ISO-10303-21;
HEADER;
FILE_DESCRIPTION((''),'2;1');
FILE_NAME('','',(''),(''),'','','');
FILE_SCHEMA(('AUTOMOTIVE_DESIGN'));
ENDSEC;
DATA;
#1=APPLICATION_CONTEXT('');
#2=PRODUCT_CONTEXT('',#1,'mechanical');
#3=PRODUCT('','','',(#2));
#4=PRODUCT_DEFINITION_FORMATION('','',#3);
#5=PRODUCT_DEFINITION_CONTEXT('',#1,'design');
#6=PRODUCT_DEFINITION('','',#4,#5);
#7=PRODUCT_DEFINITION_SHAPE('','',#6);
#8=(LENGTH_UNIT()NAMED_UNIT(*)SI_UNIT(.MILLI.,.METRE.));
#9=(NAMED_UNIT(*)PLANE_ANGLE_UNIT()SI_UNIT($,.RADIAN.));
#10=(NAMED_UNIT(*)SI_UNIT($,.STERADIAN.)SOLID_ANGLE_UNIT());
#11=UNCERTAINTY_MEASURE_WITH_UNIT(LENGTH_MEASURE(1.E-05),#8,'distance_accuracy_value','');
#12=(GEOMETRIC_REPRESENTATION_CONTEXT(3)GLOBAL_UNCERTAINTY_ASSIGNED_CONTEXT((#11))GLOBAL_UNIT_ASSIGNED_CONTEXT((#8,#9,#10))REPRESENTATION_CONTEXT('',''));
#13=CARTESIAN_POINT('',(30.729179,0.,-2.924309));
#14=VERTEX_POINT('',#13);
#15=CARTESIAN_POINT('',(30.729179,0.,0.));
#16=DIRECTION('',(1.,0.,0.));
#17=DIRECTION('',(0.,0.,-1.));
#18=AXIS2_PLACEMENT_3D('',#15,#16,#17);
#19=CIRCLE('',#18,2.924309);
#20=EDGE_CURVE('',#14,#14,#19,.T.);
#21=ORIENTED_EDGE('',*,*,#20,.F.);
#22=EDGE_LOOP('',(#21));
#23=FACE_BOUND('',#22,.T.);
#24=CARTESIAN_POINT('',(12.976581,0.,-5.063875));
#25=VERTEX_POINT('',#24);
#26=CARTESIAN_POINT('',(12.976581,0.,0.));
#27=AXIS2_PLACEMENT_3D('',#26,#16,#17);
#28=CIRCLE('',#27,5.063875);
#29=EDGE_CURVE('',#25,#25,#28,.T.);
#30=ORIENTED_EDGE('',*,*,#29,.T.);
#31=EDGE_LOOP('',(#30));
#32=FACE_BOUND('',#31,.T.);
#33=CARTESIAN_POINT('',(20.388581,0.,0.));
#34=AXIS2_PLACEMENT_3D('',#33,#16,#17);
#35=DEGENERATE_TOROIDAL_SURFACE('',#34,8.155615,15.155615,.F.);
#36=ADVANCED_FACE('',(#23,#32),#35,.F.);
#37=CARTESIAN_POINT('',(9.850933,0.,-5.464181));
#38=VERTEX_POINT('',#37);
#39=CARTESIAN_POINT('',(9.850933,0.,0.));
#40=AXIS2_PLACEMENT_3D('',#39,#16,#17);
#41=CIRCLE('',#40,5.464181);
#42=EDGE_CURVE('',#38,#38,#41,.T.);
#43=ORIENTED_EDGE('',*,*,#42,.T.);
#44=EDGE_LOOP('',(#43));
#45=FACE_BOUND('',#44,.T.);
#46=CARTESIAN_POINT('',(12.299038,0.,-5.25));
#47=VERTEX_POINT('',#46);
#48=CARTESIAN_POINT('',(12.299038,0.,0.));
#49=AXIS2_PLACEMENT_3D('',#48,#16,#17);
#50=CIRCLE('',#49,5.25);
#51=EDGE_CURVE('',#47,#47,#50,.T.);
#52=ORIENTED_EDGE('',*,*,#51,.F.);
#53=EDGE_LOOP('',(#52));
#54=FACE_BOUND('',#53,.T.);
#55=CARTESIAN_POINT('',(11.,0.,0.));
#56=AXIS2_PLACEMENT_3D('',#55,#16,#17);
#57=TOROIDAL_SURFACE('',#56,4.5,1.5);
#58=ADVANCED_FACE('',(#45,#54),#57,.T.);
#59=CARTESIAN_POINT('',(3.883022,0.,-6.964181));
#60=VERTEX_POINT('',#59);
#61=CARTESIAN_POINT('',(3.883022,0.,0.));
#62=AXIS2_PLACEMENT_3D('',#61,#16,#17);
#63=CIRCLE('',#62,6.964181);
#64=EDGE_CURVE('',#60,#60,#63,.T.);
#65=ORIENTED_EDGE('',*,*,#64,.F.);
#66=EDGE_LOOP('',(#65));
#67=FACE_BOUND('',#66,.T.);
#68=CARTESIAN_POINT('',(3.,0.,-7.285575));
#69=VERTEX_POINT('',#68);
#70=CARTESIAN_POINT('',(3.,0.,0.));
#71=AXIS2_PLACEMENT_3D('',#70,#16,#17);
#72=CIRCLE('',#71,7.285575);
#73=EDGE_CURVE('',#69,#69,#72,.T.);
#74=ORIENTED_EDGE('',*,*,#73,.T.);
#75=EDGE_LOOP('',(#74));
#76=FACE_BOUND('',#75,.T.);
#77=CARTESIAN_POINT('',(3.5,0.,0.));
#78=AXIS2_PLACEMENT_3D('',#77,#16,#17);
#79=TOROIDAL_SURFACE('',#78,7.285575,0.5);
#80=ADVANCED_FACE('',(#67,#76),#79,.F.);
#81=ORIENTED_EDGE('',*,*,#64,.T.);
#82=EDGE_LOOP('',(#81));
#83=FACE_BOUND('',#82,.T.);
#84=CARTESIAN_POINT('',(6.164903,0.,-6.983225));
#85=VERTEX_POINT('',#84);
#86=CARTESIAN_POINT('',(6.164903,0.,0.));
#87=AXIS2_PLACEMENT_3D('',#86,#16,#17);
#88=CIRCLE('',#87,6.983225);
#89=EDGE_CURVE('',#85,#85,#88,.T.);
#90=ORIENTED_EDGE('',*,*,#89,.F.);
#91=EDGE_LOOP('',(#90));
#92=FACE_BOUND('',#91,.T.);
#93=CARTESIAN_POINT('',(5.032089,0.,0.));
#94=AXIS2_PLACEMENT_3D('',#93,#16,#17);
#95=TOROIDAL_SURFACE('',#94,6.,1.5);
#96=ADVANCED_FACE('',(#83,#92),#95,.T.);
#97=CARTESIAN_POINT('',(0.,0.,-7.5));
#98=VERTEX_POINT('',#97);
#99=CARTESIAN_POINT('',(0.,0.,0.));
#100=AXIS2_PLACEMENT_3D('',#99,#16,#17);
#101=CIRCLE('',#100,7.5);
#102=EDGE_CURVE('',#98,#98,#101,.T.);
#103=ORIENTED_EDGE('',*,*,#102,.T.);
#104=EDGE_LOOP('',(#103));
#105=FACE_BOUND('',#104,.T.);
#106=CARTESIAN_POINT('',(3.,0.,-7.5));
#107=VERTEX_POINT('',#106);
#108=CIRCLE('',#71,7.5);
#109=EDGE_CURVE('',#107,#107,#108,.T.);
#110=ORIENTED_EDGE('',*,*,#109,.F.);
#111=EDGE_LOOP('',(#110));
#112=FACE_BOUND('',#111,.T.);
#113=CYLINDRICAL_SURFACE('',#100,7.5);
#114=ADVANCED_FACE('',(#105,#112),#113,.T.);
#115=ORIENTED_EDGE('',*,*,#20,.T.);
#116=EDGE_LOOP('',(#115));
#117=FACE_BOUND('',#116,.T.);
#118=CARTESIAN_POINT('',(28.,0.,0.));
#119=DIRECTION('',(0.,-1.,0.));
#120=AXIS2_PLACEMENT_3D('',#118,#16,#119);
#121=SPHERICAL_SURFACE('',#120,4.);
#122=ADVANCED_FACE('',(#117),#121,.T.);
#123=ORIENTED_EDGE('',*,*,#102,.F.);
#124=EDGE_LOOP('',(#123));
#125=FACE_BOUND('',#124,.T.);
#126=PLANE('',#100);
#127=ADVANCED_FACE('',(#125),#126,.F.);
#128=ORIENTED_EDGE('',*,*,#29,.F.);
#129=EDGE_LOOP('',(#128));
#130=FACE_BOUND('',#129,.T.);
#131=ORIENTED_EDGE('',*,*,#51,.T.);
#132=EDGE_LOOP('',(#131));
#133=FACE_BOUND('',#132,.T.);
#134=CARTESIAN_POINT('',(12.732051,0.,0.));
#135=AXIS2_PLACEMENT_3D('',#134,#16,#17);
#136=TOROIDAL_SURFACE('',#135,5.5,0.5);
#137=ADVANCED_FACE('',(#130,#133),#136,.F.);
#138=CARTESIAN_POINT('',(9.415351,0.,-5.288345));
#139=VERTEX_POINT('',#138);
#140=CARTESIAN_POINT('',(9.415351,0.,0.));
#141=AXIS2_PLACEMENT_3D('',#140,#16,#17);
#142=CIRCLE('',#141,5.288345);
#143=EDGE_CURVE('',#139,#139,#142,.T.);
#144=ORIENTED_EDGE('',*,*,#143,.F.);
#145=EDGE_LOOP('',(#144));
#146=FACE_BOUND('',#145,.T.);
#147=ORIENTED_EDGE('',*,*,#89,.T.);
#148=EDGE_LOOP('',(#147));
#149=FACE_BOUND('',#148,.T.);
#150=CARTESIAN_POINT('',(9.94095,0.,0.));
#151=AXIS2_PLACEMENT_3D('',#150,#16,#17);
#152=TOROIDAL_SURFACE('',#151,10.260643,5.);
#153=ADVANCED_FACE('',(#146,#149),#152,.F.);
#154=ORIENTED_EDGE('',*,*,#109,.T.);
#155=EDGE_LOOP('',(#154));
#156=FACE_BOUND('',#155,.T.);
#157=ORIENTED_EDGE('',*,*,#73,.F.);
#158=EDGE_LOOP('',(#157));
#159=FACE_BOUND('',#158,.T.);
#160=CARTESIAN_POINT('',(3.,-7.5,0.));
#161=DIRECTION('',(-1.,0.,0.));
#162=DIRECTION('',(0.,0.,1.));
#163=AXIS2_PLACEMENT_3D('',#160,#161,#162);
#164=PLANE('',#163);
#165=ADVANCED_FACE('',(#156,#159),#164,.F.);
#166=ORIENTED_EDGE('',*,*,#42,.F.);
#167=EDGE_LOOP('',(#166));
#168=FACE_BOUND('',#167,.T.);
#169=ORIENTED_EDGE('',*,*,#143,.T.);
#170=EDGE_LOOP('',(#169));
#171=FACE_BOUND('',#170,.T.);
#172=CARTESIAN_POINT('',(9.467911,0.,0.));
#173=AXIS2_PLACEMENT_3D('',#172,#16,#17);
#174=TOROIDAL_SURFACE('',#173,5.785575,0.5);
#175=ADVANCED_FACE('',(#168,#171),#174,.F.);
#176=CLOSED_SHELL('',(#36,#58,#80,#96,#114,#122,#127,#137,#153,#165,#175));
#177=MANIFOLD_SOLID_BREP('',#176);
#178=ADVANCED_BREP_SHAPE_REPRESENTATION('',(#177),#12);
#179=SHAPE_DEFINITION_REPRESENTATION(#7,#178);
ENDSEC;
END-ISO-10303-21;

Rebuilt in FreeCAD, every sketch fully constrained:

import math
import FreeCAD as App
import Part
import Sketcher

doc = App.newDocument("Part")
body = doc.addObject("PartDesign::Body", "Body")

# Sketch on XY plane
sketch1 = body.newObject("Sketcher::SketchObject", "Sketch")
sketch1.AttachmentSupport = (doc.getObject("XY_Plane"), [""])
sketch1.MapMode = "FlatFace"
sketch1.addGeometry([
    Part.LineSegment(App.Vector(0, 0, 0), App.Vector(0, -7.5, 0)),  # 0
    Part.LineSegment(App.Vector(0, -7.5, 0), App.Vector(3, -7.5, 0)),  # 1
    Part.LineSegment(App.Vector(3, -7.5, 0), App.Vector(3, -7.29, 0)),  # 2
    Part.ArcOfCircle(Part.Circle(App.Vector(3.5, -7.29, 0), App.Vector(0, 0, 1), 0.5), math.radians(40), math.radians(180)),  # 3
    Part.ArcOfCircle(Part.Circle(App.Vector(5.03, -6, 0), App.Vector(0, 0, 1), 1.5), math.radians(-140), math.radians(-41)),  # 4
    Part.ArcOfCircle(Part.Circle(App.Vector(9.94, -10.26, 0), App.Vector(0, 0, 1), 5), math.radians(96), math.radians(139)),  # 5
    Part.ArcOfCircle(Part.Circle(App.Vector(9.47, -5.79, 0), App.Vector(0, 0, 1), 0.5), math.radians(40), math.radians(96)),  # 6
    Part.ArcOfCircle(Part.Circle(App.Vector(11, -4.5, 0), App.Vector(0, 0, 1), 1.5), math.radians(-140), math.radians(-30)),  # 7
    Part.ArcOfCircle(Part.Circle(App.Vector(12.73, -5.5, 0), App.Vector(0, 0, 1), 0.5), math.radians(61), math.radians(150)),  # 8
    Part.ArcOfCircle(Part.Circle(App.Vector(20.39, 8.16, 0), App.Vector(0, 0, 1), 15.16), math.radians(-119), math.radians(-47)),  # 9
    Part.ArcOfCircle(Part.Circle(App.Vector(28, 0, 0), App.Vector(0, 0, 1), 4), math.radians(-47), math.radians(0)),  # 10
    Part.LineSegment(App.Vector(32, 0, 0), App.Vector(0, 0, 0)),  # 11
], False)
sketch1.addConstraint([
    Sketcher.Constraint("Coincident", 0, 2, 1, 1),
    Sketcher.Constraint("Coincident", 1, 2, 2, 1),
    Sketcher.Constraint("Tangent", 2, 2, 3, 2),
    Sketcher.Constraint("Tangent", 3, 1, 4, 1),
    Sketcher.Constraint("Tangent", 4, 2, 5, 2),
    Sketcher.Constraint("Tangent", 5, 1, 6, 2),
    Sketcher.Constraint("Tangent", 6, 1, 7, 1),
    Sketcher.Constraint("Tangent", 7, 2, 8, 2),
    Sketcher.Constraint("Tangent", 8, 1, 9, 1),
    Sketcher.Constraint("Tangent", 9, 2, 10, 1),
    Sketcher.Constraint("Coincident", 10, 2, 11, 1),
    Sketcher.Constraint("Coincident", 11, 2, 0, 1),
    Sketcher.Constraint("Vertical", 0),
    Sketcher.Constraint("Horizontal", 1),
    Sketcher.Constraint("Vertical", 2),
    Sketcher.Constraint("Horizontal", 11),
    Sketcher.Constraint("Coincident", 11, 2, -1, 1),
    Sketcher.Constraint("Equal", 3, 6),
    Sketcher.Constraint("Equal", 4, 7),
    Sketcher.Constraint("Equal", 6, 8),
    Sketcher.Constraint("PointOnObject", 10, 3, -1),
    Sketcher.Constraint("Radius", 5, 5.0),
    Sketcher.Constraint("Radius", 10, 4.0),
    Sketcher.Constraint("Radius", 3, 0.5),
    Sketcher.Constraint("Radius", 4, 1.5),
    Sketcher.Constraint("DistanceX", 1, 1, 1, 2, 3.0),
    Sketcher.Constraint("DistanceX", 11, 2, 11, 1, 32.0),
    Sketcher.Constraint("DistanceY", 0, 2, 0, 1, 7.5),
    Sketcher.Constraint("DistanceY", 4, 3, -1, 1, 6.0),
    Sketcher.Constraint("DistanceX", -1, 1, 7, 3, 11.0),
    Sketcher.Constraint("DistanceY", 8, 3, 7, 3, 1.0),
    Sketcher.Constraint("DistanceY", 0, 2, 7, 3, 3.0),
    Sketcher.Constraint("DistanceY", 3, 3, 6, 3, 1.5),
    Sketcher.Constraint("Radius", 9, 15.155615),
    Sketcher.Constraint("DistanceX", 5, 3, 8, 3, 2.791101),
])
revolution = body.newObject("PartDesign::Revolution", "Revolution")
revolution.Profile = sketch1
revolution.ReferenceAxis = (sketch1, ["H_Axis"])
revolution.Angle = 360

doc.recompute()
